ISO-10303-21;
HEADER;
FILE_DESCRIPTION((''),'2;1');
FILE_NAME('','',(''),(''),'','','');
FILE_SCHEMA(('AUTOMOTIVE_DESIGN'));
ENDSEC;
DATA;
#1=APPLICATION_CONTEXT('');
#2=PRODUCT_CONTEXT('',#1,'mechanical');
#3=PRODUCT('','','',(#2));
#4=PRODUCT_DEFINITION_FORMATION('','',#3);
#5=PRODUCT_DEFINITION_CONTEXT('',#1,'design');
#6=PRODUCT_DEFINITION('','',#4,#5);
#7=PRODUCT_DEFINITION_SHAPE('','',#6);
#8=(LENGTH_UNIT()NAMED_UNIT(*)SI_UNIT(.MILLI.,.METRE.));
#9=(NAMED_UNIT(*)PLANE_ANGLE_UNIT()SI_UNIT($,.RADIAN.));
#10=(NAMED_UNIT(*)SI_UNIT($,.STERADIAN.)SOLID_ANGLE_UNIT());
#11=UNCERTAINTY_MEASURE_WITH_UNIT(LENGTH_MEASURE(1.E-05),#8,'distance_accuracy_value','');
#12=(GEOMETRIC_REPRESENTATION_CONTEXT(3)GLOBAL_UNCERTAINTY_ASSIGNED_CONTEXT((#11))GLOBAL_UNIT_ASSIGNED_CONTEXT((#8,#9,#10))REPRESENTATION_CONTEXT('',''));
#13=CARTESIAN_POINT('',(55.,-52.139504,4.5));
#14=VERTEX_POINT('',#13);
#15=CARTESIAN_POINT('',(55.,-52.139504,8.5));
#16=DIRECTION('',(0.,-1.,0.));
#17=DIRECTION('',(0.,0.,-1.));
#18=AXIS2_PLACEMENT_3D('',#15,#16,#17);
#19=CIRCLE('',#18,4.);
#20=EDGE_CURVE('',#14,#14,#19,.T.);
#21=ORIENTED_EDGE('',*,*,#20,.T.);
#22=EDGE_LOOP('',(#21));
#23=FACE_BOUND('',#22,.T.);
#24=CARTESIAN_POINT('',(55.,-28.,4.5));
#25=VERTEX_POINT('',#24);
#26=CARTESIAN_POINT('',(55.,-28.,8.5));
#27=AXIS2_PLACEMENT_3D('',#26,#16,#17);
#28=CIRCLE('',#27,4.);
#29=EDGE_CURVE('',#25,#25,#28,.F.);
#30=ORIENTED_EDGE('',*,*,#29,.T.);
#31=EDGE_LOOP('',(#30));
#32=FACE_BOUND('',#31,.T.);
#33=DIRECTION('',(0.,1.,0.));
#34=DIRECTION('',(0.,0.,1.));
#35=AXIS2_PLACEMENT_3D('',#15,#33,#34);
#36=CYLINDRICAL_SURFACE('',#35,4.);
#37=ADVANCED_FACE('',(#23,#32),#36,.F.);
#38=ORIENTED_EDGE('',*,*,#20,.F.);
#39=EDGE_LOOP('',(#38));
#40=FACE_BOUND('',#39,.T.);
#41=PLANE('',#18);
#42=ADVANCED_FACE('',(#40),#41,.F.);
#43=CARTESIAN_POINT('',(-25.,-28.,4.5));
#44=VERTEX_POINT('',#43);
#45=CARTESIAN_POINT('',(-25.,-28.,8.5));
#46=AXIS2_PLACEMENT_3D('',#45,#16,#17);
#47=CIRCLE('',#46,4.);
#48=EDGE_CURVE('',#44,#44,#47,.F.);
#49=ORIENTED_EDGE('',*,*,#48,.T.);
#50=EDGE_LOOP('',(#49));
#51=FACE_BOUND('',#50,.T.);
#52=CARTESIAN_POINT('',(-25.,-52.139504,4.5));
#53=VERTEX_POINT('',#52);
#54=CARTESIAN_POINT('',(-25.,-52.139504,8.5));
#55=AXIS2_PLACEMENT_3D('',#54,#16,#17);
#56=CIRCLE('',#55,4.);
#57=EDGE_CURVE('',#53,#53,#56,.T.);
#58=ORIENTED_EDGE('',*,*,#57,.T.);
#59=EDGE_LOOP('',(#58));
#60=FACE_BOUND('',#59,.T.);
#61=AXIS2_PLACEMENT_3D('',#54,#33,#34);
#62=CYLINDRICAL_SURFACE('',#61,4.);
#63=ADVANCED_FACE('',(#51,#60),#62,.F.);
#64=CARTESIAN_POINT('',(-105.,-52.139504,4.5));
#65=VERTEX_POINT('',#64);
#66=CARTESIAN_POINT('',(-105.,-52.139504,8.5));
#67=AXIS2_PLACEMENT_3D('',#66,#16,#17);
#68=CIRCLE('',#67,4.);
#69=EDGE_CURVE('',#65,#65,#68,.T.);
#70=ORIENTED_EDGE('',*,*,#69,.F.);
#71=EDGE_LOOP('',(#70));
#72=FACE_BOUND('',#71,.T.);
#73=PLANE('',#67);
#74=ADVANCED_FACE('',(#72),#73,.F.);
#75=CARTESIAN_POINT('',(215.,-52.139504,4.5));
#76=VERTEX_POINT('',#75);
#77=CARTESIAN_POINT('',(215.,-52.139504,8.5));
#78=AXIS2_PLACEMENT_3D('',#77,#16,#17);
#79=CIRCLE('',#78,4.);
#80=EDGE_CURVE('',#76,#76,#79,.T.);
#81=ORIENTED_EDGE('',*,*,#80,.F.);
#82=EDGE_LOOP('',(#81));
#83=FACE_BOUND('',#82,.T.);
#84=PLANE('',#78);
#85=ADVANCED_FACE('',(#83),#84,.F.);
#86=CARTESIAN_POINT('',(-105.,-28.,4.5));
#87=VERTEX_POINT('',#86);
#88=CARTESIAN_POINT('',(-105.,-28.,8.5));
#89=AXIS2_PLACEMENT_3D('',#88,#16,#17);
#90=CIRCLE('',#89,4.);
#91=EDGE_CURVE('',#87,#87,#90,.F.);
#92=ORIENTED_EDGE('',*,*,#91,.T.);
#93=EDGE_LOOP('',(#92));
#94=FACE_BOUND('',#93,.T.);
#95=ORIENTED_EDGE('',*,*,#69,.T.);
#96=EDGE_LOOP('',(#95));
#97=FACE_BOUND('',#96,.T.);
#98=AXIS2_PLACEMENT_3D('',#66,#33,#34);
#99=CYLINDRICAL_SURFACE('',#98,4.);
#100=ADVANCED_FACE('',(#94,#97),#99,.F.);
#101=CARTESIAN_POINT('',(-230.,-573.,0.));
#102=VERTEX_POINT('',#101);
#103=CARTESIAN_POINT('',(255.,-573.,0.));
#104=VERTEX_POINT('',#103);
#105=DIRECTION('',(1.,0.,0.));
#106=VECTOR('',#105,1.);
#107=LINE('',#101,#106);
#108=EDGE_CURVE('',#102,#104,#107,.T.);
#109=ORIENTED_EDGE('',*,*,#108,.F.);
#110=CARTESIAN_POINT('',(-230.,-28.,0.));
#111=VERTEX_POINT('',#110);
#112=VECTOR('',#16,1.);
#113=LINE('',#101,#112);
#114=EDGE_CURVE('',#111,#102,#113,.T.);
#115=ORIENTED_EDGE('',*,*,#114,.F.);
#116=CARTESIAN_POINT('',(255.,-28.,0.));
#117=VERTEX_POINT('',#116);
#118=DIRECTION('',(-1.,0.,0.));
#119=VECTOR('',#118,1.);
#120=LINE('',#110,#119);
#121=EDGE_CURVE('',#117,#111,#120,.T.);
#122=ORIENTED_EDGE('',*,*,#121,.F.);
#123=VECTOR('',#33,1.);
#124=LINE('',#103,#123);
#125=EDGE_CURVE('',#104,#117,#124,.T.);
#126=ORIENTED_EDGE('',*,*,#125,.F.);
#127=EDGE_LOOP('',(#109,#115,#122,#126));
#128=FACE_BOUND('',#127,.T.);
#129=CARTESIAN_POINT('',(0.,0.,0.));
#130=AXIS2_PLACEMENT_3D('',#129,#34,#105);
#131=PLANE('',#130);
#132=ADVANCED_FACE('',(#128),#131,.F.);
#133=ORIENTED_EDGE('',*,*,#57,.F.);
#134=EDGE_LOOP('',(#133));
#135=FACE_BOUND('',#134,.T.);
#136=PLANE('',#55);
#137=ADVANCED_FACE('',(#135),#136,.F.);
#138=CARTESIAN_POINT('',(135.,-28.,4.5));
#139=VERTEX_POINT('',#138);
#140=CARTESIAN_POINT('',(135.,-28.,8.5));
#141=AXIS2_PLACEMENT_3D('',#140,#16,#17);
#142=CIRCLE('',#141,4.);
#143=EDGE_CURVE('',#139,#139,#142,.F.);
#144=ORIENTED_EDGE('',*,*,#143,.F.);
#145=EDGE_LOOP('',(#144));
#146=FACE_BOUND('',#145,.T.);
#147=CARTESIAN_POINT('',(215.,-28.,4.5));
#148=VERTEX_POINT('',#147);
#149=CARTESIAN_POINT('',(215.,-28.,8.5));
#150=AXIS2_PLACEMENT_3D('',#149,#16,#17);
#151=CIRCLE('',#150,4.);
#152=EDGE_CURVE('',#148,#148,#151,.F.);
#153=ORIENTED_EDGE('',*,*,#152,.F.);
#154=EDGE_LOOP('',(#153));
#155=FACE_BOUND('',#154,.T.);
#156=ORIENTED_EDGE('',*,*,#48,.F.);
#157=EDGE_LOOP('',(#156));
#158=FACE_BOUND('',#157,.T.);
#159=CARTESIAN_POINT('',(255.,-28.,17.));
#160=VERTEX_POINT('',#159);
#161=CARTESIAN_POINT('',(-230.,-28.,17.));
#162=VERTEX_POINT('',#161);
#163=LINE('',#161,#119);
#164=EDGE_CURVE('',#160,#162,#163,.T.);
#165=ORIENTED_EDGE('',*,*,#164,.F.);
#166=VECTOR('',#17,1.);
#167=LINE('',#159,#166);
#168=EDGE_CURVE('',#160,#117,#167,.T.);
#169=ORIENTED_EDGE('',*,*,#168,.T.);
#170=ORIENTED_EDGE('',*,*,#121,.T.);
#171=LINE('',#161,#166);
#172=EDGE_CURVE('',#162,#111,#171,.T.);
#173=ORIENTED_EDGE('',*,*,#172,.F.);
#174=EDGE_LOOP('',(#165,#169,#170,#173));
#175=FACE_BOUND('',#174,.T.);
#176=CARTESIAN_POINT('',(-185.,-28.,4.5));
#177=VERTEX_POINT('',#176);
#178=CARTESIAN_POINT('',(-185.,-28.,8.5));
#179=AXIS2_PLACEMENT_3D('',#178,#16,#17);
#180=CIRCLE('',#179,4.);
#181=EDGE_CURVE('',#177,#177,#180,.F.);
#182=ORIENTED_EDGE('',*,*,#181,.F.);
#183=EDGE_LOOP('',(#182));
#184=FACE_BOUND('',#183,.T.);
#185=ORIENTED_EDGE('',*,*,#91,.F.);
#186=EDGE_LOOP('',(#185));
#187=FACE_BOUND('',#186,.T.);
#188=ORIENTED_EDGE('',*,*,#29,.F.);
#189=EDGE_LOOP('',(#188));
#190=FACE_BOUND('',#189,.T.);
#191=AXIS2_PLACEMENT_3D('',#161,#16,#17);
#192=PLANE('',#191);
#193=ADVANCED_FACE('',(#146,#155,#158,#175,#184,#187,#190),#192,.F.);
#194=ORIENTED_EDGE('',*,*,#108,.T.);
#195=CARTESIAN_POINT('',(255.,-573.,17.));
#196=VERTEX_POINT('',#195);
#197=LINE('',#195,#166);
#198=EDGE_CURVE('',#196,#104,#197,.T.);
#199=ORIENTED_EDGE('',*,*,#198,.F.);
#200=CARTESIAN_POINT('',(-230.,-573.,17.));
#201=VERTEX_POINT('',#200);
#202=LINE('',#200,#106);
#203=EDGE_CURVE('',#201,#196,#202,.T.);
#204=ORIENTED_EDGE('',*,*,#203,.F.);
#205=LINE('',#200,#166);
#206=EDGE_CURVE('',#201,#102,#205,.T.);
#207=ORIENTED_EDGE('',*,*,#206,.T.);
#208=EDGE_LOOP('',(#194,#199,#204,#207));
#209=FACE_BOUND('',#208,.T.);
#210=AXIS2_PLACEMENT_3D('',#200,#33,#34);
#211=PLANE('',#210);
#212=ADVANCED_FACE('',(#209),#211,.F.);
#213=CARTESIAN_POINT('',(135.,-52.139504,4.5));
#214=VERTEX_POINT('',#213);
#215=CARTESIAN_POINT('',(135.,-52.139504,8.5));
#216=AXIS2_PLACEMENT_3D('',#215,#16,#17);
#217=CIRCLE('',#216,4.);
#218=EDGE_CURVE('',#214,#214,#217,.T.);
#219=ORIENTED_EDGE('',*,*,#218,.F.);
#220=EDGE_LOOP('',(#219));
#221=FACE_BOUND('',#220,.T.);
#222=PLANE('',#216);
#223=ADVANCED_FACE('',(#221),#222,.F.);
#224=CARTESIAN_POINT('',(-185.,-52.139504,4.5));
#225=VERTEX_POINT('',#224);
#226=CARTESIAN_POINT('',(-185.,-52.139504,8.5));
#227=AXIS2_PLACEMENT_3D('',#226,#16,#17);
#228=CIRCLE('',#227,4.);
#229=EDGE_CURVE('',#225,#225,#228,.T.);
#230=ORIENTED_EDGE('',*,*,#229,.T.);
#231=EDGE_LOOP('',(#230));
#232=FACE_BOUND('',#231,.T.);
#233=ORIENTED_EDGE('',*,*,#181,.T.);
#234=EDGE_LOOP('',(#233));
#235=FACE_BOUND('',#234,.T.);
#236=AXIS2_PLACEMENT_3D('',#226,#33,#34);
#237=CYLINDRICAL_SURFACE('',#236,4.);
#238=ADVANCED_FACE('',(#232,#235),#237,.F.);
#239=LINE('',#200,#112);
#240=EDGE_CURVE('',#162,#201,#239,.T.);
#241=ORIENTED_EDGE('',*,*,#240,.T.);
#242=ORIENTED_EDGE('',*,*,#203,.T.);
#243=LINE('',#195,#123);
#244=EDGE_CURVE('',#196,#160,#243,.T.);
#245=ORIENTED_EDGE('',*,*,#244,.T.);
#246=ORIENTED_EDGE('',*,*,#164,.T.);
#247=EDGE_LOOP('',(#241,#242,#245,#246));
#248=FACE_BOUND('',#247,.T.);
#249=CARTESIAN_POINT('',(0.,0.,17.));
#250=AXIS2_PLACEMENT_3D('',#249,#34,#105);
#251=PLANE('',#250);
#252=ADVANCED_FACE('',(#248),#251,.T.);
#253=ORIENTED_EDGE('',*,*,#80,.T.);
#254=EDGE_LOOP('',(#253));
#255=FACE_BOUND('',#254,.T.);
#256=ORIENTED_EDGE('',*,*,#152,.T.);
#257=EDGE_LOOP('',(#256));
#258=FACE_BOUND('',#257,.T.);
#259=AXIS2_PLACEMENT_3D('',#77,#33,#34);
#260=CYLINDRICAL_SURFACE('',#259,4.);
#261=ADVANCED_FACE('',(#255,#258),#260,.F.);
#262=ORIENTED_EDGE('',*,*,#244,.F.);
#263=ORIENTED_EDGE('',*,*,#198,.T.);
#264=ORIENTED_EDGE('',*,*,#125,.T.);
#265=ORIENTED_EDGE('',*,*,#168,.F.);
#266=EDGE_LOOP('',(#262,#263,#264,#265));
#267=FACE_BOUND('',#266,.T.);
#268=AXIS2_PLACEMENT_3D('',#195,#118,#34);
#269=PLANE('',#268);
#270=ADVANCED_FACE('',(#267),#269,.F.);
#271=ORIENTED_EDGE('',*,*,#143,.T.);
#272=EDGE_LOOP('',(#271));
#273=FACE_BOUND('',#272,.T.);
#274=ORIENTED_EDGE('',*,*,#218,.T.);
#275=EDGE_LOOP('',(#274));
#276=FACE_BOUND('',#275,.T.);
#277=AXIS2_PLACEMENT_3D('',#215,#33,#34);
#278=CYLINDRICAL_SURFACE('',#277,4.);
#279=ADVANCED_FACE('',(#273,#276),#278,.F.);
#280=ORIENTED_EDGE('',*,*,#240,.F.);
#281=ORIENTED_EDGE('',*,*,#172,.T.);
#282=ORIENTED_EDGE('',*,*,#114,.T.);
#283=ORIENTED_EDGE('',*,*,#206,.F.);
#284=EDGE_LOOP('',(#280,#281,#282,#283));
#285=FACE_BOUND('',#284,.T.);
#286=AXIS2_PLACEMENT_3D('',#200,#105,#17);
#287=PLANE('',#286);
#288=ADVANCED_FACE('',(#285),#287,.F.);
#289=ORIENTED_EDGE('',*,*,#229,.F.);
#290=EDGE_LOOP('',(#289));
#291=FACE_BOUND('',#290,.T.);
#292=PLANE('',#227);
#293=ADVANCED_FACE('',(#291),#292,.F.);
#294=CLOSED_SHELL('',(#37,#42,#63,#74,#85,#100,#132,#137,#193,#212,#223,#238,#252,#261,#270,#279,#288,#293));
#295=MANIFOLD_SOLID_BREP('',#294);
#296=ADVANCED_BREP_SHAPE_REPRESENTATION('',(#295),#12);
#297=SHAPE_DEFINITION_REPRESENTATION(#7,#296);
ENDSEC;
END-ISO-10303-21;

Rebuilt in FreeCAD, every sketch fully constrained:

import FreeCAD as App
import Part
import Sketcher

V = App.Vector


def add_polygon(sketch, points):
    """Adds a closed chain of lines whose ends are joined by coincident constraints."""
    first, n = sketch.GeometryCount, len(points)
    for a, b in zip(points, points[1:] + points[:1]):
        sketch.addGeometry(Part.LineSegment(App.Vector(*a, 0), App.Vector(*b, 0)), False)
    for i in range(n):
        sketch.addConstraint(Sketcher.Constraint("Coincident", first + i, 2, first + (i + 1) % n, 1))

doc = App.newDocument("Part")
body = doc.addObject("PartDesign::Body", "Body")

# Sketch on XY plane
sketch1 = body.newObject("Sketcher::SketchObject", "Sketch")
sketch1.AttachmentSupport = (doc.getObject("XY_Plane"), [""])
sketch1.MapMode = "FlatFace"
add_polygon(sketch1, [(-230, -28), (-230, -573), (255, -573), (255, -28)])  # lines 0-3
sketch1.addConstraint(Sketcher.Constraint("Vertical", 0))
sketch1.addConstraint(Sketcher.Constraint("Horizontal", 1))
sketch1.addConstraint(Sketcher.Constraint("Vertical", 2))
sketch1.addConstraint(Sketcher.Constraint("Horizontal", 3))
sketch1.addConstraint(Sketcher.Constraint("DistanceX", 1, 1, 1, 2, 485.0))
sketch1.addConstraint(Sketcher.Constraint("DistanceY", 0, 2, 0, 1, 545.0))
sketch1.addConstraint(Sketcher.Constraint("DistanceX", 0, 2, -1, 1, 230.0))
sketch1.addConstraint(Sketcher.Constraint("DistanceY", 0, 2, -1, 1, 573.0))
pad1 = body.newObject("PartDesign::Pad", "Pad")
pad1.Profile = sketch1
pad1.Length = 17

# Sketch on XZ plane
sketch2 = body.newObject("Sketcher::SketchObject", "Sketch001")
sketch2.AttachmentSupport = (doc.getObject("XZ_Plane"), [""])
sketch2.MapMode = "FlatFace"
sketch2.AttachmentOffset = App.Placement(V(0, 0, 27.139504), App.Rotation())
sketch2.addGeometry(Part.Circle(V(215, 8.5, 0), V(0, 0, 1), 4), False)
sketch2.addGeometry(Part.Circle(V(135, 8.5, 0), V(0, 0, 1), 4), False)
sketch2.addGeometry(Part.Circle(V(55, 8.5, 0), V(0, 0, 1), 4), False)
sketch2.addGeometry(Part.Circle(V(-25, 8.5, 0), V(0, 0, 1), 4), False)
sketch2.addGeometry(Part.Circle(V(-105, 8.5, 0), V(0, 0, 1), 4), False)
sketch2.addGeometry(Part.Circle(V(-185, 8.5, 0), V(0, 0, 1), 4), False)
sketch2.addConstraint(Sketcher.Constraint("Equal", 0, 1))
sketch2.addConstraint(Sketcher.Constraint("Equal", 1, 2))
sketch2.addConstraint(Sketcher.Constraint("Equal", 2, 3))
sketch2.addConstraint(Sketcher.Constraint("Equal", 3, 4))
sketch2.addConstraint(Sketcher.Constraint("Equal", 4, 5))
sketch2.addConstraint(Sketcher.Constraint("Horizontal", 0, 3, 1, 3))
sketch2.addConstraint(Sketcher.Constraint("Horizontal", 1, 3, 2, 3))
sketch2.addConstraint(Sketcher.Constraint("Horizontal", 2, 3, 3, 3))
sketch2.addConstraint(Sketcher.Constraint("Horizontal", 3, 3, 4, 3))
sketch2.addConstraint(Sketcher.Constraint("Horizontal", 4, 3, 5, 3))
sketch2.addConstraint(Sketcher.Constraint("Diameter", 0, 8.0))
sketch2.addConstraint(Sketcher.Constraint("DistanceX", -1, 1, 0, 3, 215.0))
sketch2.addConstraint(Sketcher.Constraint("DistanceX", -1, 1, 1, 3, 135.0))
sketch2.addConstraint(Sketcher.Constraint("DistanceX", -1, 1, 2, 3, 55.0))
sketch2.addConstraint(Sketcher.Constraint("DistanceX", 3, 3, -1, 1, 25.0))
sketch2.addConstraint(Sketcher.Constraint("DistanceX", 4, 3, -1, 1, 105.0))
sketch2.addConstraint(Sketcher.Constraint("DistanceX", 5, 3, -1, 1, 185.0))
sketch2.addConstraint(Sketcher.Constraint("DistanceY", -1, 1, 0, 3, 8.5))
pocket1 = body.newObject("PartDesign::Pocket", "Pocket")
pocket1.Profile = sketch2
pocket1.Type = "TwoLengths"
pocket1.Length = 25
pocket1.Length2 = 13
pocket1.Reversed = True

doc.recompute()
